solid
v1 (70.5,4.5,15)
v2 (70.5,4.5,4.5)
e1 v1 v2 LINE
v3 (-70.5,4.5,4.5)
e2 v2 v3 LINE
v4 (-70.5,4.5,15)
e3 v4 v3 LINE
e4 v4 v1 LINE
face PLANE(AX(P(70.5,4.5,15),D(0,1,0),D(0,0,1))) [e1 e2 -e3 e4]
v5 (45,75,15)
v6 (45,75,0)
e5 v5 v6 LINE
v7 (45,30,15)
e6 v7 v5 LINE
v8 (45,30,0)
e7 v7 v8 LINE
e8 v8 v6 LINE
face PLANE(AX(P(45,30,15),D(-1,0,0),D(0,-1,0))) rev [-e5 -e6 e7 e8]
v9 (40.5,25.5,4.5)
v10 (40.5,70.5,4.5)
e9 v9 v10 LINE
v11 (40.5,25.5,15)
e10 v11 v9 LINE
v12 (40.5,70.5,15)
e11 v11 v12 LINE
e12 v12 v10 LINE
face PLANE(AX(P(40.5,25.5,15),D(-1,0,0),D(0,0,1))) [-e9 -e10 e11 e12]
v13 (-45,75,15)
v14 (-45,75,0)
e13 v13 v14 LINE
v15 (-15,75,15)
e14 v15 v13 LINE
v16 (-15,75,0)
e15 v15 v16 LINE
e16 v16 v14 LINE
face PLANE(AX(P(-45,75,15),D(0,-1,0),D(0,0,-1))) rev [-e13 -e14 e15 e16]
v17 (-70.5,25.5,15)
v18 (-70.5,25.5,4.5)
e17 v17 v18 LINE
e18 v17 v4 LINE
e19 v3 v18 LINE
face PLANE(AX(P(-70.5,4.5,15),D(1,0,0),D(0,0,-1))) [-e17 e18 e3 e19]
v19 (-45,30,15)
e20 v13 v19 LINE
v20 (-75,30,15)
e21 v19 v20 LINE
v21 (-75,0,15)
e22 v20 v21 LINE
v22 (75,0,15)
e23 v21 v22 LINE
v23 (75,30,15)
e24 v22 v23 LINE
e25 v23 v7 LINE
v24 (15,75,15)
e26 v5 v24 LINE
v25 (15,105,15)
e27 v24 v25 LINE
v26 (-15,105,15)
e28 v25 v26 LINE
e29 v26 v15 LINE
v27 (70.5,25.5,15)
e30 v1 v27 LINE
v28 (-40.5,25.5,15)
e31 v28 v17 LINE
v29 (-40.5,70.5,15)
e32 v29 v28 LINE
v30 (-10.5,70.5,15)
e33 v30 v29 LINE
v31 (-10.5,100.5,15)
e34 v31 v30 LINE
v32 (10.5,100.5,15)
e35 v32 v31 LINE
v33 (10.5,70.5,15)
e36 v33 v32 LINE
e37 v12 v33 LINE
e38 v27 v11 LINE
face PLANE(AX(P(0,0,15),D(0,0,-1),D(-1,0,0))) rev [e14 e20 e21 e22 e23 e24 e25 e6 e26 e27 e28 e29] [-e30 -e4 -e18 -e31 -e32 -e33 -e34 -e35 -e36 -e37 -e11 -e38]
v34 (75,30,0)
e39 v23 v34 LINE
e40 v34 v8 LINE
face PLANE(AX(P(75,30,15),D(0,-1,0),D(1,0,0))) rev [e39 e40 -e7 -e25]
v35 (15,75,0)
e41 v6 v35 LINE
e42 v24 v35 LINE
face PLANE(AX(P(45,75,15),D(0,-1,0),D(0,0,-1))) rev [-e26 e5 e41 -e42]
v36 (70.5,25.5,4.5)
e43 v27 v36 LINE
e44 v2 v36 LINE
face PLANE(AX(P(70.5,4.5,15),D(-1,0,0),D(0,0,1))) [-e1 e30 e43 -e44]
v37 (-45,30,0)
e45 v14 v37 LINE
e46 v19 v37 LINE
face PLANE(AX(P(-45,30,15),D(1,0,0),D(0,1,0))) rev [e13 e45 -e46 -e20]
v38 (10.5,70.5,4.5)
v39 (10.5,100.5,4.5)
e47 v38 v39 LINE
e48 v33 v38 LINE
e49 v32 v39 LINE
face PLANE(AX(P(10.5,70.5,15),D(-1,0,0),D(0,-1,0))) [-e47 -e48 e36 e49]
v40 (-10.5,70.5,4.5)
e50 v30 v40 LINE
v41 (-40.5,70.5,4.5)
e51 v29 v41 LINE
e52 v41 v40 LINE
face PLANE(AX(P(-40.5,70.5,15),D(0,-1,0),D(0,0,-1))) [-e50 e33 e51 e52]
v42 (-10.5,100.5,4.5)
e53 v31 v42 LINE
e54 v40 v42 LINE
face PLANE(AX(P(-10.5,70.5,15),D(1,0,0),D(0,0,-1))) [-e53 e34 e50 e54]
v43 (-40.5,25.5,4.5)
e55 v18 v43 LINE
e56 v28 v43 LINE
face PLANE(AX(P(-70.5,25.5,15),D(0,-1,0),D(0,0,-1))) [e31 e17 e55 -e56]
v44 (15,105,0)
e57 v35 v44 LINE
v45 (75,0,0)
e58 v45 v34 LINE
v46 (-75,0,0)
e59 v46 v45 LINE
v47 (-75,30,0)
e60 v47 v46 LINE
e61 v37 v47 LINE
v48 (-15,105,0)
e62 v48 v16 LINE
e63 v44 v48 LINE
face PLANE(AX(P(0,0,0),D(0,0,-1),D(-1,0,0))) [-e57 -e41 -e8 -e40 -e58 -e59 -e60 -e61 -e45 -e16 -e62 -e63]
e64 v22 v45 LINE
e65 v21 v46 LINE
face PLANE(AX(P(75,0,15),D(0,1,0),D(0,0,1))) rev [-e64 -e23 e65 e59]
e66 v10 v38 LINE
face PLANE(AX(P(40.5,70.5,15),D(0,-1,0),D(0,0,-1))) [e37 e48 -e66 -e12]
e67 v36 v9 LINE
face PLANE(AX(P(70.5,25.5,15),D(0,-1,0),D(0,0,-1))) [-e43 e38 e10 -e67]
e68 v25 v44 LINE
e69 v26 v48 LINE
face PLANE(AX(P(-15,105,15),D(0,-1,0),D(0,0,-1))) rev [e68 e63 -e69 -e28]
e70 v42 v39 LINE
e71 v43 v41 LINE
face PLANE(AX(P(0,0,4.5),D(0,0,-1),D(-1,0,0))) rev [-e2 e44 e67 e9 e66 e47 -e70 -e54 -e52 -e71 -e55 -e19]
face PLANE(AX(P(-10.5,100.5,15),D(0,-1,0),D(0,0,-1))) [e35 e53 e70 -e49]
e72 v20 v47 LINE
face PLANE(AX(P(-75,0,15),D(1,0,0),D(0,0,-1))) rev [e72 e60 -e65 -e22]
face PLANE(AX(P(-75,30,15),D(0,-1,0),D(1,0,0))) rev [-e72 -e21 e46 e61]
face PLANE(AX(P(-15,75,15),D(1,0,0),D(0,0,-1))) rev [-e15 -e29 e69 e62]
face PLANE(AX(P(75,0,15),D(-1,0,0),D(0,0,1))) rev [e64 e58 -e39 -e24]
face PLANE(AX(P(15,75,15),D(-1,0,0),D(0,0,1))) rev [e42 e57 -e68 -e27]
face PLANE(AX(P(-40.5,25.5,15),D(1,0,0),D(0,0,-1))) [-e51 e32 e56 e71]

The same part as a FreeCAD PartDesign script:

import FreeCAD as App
import Part
import Sketcher
Q = App.Units.Quantity

doc = App.newDocument("Part")
body = doc.addObject("PartDesign::Body", "Body")

sketch1 = body.newObject("Sketcher::SketchObject", "Sketch")
sketch1.AttachmentSupport = (doc.getObject("XY_Plane"), [""])
sketch1.MapMode = "FlatFace"
sketch1.addGeometry([
    Part.LineSegment(App.Vector(-75, 0, 0), App.Vector(75, 0, 0)),
    Part.LineSegment(App.Vector(75, 0, 0), App.Vector(75, 30, 0)),
    Part.LineSegment(App.Vector(75, 30, 0), App.Vector(45, 30, 0)),
    Part.LineSegment(App.Vector(45, 30, 0), App.Vector(45, 75, 0)),
    Part.LineSegment(App.Vector(45, 75, 0), App.Vector(15, 75, 0)),
    Part.LineSegment(App.Vector(15, 75, 0), App.Vector(15, 105, 0)),
    Part.LineSegment(App.Vector(15, 105, 0), App.Vector(-15, 105, 0)),
    Part.LineSegment(App.Vector(-15, 105, 0), App.Vector(-15, 75, 0)),
    Part.LineSegment(App.Vector(-15, 75, 0), App.Vector(-45, 75, 0)),
    Part.LineSegment(App.Vector(-45, 75, 0), App.Vector(-45, 30, 0)),
    Part.LineSegment(App.Vector(-45, 30, 0), App.Vector(-75, 30, 0)),
    Part.LineSegment(App.Vector(-75, 30, 0), App.Vector(-75, 0, 0)),
    Part.LineSegment(App.Vector(-70, 4, 0), App.Vector(-70, 26, 0)),
    Part.LineSegment(App.Vector(-70, 26, 0), App.Vector(-40, 26, 0)),
    Part.LineSegment(App.Vector(-40, 26, 0), App.Vector(-40, 70, 0)),
    Part.LineSegment(App.Vector(-40, 70, 0), App.Vector(-10, 70, 0)),
    Part.LineSegment(App.Vector(-10, 70, 0), App.Vector(-10, 100, 0)),
    Part.LineSegment(App.Vector(-10, 100, 0), App.Vector(10, 100, 0)),
    Part.LineSegment(App.Vector(10, 100, 0), App.Vector(10, 70, 0)),
    Part.LineSegment(App.Vector(10, 70, 0), App.Vector(40, 70, 0)),
    Part.LineSegment(App.Vector(40, 70, 0), App.Vector(40, 26, 0)),
    Part.LineSegment(App.Vector(40, 26, 0), App.Vector(70, 26, 0)),
    Part.LineSegment(App.Vector(70, 26, 0), App.Vector(70, 4, 0)),
    Part.LineSegment(App.Vector(70, 4, 0), App.Vector(-70, 4, 0)),
], False)
sketch1.addConstraint([
    Sketcher.Constraint("Coincident", 0, 2, 1, 1),
    Sketcher.Constraint("Coincident", 1, 2, 2, 1),
    Sketcher.Constraint("Coincident", 2, 2, 3, 1),
    Sketcher.Constraint("Coincident", 3, 2, 4, 1),
    Sketcher.Constraint("Coincident", 4, 2, 5, 1),
    Sketcher.Constraint("Coincident", 5, 2, 6, 1),
    Sketcher.Constraint("Coincident", 6, 2, 7, 1),
    Sketcher.Constraint("Coincident", 7, 2, 8, 1),
    Sketcher.Constraint("Coincident", 8, 2, 9, 1),
    Sketcher.Constraint("Coincident", 9, 2, 10, 1),
    Sketcher.Constraint("Coincident", 10, 2, 11, 1),
    Sketcher.Constraint("Coincident", 11, 2, 0, 1),
    Sketcher.Constraint("Coincident", 12, 2, 13, 1),
    Sketcher.Constraint("Coincident", 13, 2, 14, 1),
    Sketcher.Constraint("Coincident", 14, 2, 15, 1),
    Sketcher.Constraint("Coincident", 15, 2, 16, 1),
    Sketcher.Constraint("Coincident", 16, 2, 17, 1),
    Sketcher.Constraint("Coincident", 17, 2, 18, 1),
    Sketcher.Constraint("Coincident", 18, 2, 19, 1),
    Sketcher.Constraint("Coincident", 19, 2, 20, 1),
    Sketcher.Constraint("Coincident", 20, 2, 21, 1),
    Sketcher.Constraint("Coincident", 21, 2, 22, 1),
    Sketcher.Constraint("Coincident", 22, 2, 23, 1),
    Sketcher.Constraint("Coincident", 23, 2, 12, 1),
    Sketcher.Constraint("Horizontal", 0),
    Sketcher.Constraint("Vertical", 1),
    Sketcher.Constraint("Horizontal", 2),
    Sketcher.Constraint("Vertical", 3),
    Sketcher.Constraint("Horizontal", 4),
    Sketcher.Constraint("Vertical", 5),
    Sketcher.Constraint("Horizontal", 6),
    Sketcher.Constraint("Vertical", 7),
    Sketcher.Constraint("Horizontal", 8),
    Sketcher.Constraint("Vertical", 9),
    Sketcher.Constraint("Horizontal", 10),
    Sketcher.Constraint("Vertical", 11),
    Sketcher.Constraint("Vertical", 12),
    Sketcher.Constraint("Horizontal", 13),
    Sketcher.Constraint("Vertical", 14),
    Sketcher.Constraint("Horizontal", 15),
    Sketcher.Constraint("Vertical", 16),
    Sketcher.Constraint("Horizontal", 17),
    Sketcher.Constraint("Vertical", 18),
    Sketcher.Constraint("Horizontal", 19),
    Sketcher.Constraint("Vertical", 20),
    Sketcher.Constraint("Horizontal", 21),
    Sketcher.Constraint("Vertical", 22),
    Sketcher.Constraint("Horizontal", 23),
    Sketcher.Constraint("Symmetric", 0, 2, 11, 2, -1, 1),
    Sketcher.Constraint("Symmetric", 4, 2, 7, 2, -2),
    Sketcher.Constraint("Symmetric", 2, 2, 9, 2, -2),
    Sketcher.Constraint("Symmetric", 15, 2, 18, 2, -2),
    Sketcher.Constraint("Symmetric", 13, 2, 20, 2, -2),
    Sketcher.Constraint("Equal", 2, 4),
    Sketcher.Constraint("Equal", 4, 6),
    Sketcher.Constraint("Equal", 10, 13),
    Sketcher.Constraint("Equal", 13, 15),
    Sketcher.Constraint("Equal", 19, 21),
    Sketcher.Constraint("Equal", 21, 1),
    Sketcher.Constraint("Equal", 1, 5),
    Sketcher.Constraint("Equal", 17, 12),
    Sketcher.Constraint("Equal", 9, 14),
    Sketcher.Constraint("Equal", 11, 16),
    Sketcher.Constraint("DistanceX", 0, 1, 0, 2, Q("150 mm")),
    Sketcher.Constraint("DistanceX", 17, 1, 17, 2, Q("21 mm")),
    Sketcher.Constraint("DistanceY", 3, 1, 3, 2, Q("45 mm")),
    Sketcher.Constraint("DistanceY", -1, 1, 12, 2, Q("25.5 mm")),
])
pad1 = body.newObject("PartDesign::Pad", "Pad")
pad1.Profile = sketch1
pad1.Length = 15

sketch2 = body.newObject("Sketcher::SketchObject", "Sketch001")
sketch2.AttachmentSupport = (doc.getObject("XY_Plane"), [""])
sketch2.MapMode = "FlatFace"
sketch2.addGeometry([
    Part.LineSegment(App.Vector(-70, 26, 0), App.Vector(-70, 4, 0)),
    Part.LineSegment(App.Vector(-70, 4, 0), App.Vector(70, 4, 0)),
    Part.LineSegment(App.Vector(70, 4, 0), App.Vector(70, 26, 0)),
    Part.LineSegment(App.Vector(70, 26, 0), App.Vector(40, 26, 0)),
    Part.LineSegment(App.Vector(40, 26, 0), App.Vector(40, 70, 0)),
    Part.LineSegment(App.Vector(40, 70, 0), App.Vector(10, 70, 0)),
    Part.LineSegment(App.Vector(10, 70, 0), App.Vector(10, 100, 0)),
    Part.LineSegment(App.Vector(10, 100, 0), App.Vector(-10, 100, 0)),
    Part.LineSegment(App.Vector(-10, 100, 0), App.Vector(-10, 70, 0)),
    Part.LineSegment(App.Vector(-10, 70, 0), App.Vector(-40, 70, 0)),
    Part.LineSegment(App.Vector(-40, 70, 0), App.Vector(-40, 26, 0)),
    Part.LineSegment(App.Vector(-40, 26, 0), App.Vector(-70, 26, 0)),
], False)
sketch2.addConstraint([
    Sketcher.Constraint("Coincident", 0, 2, 1, 1),
    Sketcher.Constraint("Coincident", 1, 2, 2, 1),
    Sketcher.Constraint("Coincident", 2, 2, 3, 1),
    Sketcher.Constraint("Coincident", 3, 2, 4, 1),
    Sketcher.Constraint("Coincident", 4, 2, 5, 1),
    Sketcher.Constraint("Coincident", 5, 2, 6, 1),
    Sketcher.Constraint("Coincident", 6, 2, 7, 1),
    Sketcher.Constraint("Coincident", 7, 2, 8, 1),
    Sketcher.Constraint("Coincident", 8, 2, 9, 1),
    Sketcher.Constraint("Coincident", 9, 2, 10, 1),
    Sketcher.Constraint("Coincident", 10, 2, 11, 1),
    Sketcher.Constraint("Coincident", 11, 2, 0, 1),
    Sketcher.Constraint("Vertical", 0),
    Sketcher.Constraint("Horizontal", 1),
    Sketcher.Constraint("Vertical", 2),
    Sketcher.Constraint("Horizontal", 3),
    Sketcher.Constraint("Vertical", 4),
    Sketcher.Constraint("Horizontal", 5),
    Sketcher.Constraint("Vertical", 6),
    Sketcher.Constraint("Horizontal", 7),
    Sketcher.Constraint("Vertical", 8),
    Sketcher.Constraint("Horizontal", 9),
    Sketcher.Constraint("Vertical", 10),
    Sketcher.Constraint("Horizontal", 11),
    Sketcher.Constraint("Symmetric", 5, 2, 8, 2, -2),
    Sketcher.Constraint("Symmetric", 3, 2, 10, 2, -2),
    Sketcher.Constraint("Equal", 3, 5),
    Sketcher.Constraint("Equal", 9, 11),
    Sketcher.Constraint("Equal", 7, 0),
    Sketcher.Constraint("Equal", 11, 6),
    Sketcher.Constraint("DistanceX", 1, 1, 1, 2, Q("141 mm")),
    Sketcher.Constraint("DistanceX", 3, 2, 3, 1, Q("30 mm")),
    Sketcher.Constraint("DistanceY", 4, 1, 4, 2, Q("45 mm")),
    Sketcher.Constraint("DistanceY", -1, 1, 0, 2, Q("4.5 mm")),
])
pad2 = body.newObject("PartDesign::Pad", "Pad001")
pad2.Profile = sketch2
pad2.Length = 4.5

doc.recompute()
